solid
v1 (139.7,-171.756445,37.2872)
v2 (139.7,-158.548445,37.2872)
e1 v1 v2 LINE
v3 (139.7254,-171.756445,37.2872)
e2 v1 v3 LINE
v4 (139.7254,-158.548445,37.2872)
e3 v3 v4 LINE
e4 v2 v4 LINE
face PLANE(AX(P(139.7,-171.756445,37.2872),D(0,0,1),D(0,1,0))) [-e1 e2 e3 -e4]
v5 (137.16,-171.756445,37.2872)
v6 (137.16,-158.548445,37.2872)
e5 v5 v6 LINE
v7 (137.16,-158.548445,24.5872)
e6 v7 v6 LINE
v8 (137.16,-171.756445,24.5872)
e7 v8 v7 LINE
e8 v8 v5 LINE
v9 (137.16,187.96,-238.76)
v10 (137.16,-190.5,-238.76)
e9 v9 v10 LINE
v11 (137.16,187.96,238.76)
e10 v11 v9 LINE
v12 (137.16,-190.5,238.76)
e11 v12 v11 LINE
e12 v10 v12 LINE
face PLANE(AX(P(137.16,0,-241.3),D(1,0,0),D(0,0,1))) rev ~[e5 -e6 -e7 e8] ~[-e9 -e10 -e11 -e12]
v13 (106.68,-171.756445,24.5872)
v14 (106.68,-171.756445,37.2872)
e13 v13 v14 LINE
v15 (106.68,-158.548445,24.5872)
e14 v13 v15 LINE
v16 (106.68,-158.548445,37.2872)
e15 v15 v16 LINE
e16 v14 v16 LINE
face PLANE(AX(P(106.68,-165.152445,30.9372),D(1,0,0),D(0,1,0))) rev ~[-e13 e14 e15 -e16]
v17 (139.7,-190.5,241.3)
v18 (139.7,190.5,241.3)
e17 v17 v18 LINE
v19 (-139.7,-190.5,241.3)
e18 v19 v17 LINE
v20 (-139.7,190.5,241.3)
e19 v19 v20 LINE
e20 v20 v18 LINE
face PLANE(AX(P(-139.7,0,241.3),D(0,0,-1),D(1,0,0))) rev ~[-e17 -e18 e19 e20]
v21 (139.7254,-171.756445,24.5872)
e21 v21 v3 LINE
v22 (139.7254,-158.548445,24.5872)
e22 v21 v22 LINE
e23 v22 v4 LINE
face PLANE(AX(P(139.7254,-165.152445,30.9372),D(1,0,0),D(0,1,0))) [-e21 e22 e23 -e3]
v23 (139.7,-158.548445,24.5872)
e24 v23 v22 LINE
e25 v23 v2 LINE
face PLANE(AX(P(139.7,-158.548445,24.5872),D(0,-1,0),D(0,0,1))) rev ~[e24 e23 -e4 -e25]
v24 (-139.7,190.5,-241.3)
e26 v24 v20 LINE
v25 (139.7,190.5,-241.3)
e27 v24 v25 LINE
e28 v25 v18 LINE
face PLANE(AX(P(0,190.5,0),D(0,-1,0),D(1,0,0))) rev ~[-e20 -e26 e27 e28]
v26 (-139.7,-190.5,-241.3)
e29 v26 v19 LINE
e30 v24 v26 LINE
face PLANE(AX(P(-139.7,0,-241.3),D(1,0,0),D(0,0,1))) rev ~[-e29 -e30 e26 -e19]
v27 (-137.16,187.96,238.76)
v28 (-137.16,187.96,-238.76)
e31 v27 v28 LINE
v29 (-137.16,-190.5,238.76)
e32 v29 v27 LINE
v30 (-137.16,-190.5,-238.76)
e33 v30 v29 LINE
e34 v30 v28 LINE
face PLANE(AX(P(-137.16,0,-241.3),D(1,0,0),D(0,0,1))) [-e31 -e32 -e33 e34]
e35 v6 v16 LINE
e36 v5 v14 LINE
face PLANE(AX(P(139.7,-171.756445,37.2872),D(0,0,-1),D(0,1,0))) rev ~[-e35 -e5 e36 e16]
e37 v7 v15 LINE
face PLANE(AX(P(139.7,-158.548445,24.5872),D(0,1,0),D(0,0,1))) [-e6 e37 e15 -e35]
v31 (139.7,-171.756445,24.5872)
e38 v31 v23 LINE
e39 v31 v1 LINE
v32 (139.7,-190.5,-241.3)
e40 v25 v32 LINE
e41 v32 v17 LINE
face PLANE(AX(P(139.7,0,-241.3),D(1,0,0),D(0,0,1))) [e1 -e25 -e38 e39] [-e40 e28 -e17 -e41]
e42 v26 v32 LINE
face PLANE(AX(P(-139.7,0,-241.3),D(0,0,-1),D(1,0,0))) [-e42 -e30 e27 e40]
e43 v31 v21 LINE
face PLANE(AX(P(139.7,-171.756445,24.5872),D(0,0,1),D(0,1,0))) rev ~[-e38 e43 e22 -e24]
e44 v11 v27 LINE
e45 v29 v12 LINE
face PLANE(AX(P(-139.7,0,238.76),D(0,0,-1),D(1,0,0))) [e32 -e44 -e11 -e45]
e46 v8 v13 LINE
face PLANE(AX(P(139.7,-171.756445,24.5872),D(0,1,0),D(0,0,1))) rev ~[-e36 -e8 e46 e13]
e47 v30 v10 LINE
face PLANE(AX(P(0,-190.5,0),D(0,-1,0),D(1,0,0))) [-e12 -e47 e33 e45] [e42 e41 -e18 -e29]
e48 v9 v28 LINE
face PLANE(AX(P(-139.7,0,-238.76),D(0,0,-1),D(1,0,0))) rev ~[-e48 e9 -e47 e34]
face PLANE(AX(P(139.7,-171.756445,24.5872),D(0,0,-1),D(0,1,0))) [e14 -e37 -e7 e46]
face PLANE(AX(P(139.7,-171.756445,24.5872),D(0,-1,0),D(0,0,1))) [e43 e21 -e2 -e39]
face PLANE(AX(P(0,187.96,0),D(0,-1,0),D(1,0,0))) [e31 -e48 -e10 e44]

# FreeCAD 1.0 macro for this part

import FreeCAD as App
import Part
import Sketcher

V = App.Vector
Q = App.Units.Quantity


def faces_at(feature, points):
    """Names of the faces that lie closest to the given points."""
    faces = feature.Shape.Faces
    near = lambda p: min(range(len(faces)), key=lambda i: faces[i].distToShape(Part.Vertex(*p))[0])
    return sorted({f"Face{near(p) + 1}" for p in points})

doc = App.newDocument("Part")
body = doc.addObject("PartDesign::Body", "Body")

# Sketch on XZ plane
sketch1 = body.newObject("Sketcher::SketchObject", "Sketch")
sketch1.AttachmentSupport = (doc.getObject("XZ_Plane"), [""])
sketch1.MapMode = "FlatFace"
sketch1.addGeometry([
    Part.LineSegment(V(-140, 241, 0), V(-140, -241, 0)),
    Part.LineSegment(V(-140, -241, 0), V(140, -241, 0)),
    Part.LineSegment(V(140, -241, 0), V(140, 241, 0)),
    Part.LineSegment(V(140, 241, 0), V(-140, 241, 0)),
], False)
sketch1.addConstraint([
    Sketcher.Constraint("Coincident", 0, 2, 1, 1),
    Sketcher.Constraint("Coincident", 1, 2, 2, 1),
    Sketcher.Constraint("Coincident", 2, 2, 3, 1),
    Sketcher.Constraint("Coincident", 3, 2, 0, 1),
    Sketcher.Constraint("Vertical", 0),
    Sketcher.Constraint("Horizontal", 1),
    Sketcher.Constraint("Vertical", 2),
    Sketcher.Constraint("Horizontal", 3),
    Sketcher.Constraint("Symmetric", 0, 2, 2, 2, -1, 1),
    Sketcher.Constraint("DistanceX", 1, 1, 1, 2, Q("11 in")),
    Sketcher.Constraint("DistanceY", 0, 2, 0, 1, Q("19 in")),
])
pad1 = body.newObject("PartDesign::Pad", "Pad")
pad1.Profile = sketch1
pad1.Length = Q("15 in")
pad1.Midplane = True
doc.recompute()

thickness = body.newObject("PartDesign::Thickness", "Thickness")
thickness.Base = (pad1, faces_at(pad1, [(0, -190.5, 0)]))
thickness.Value = Q("0.1 in")
thickness.Reversed = True
thickness.Join = "Arc"

# Sketch on YZ plane
sketch2 = body.newObject("Sketcher::SketchObject", "Sketch001")
sketch2.AttachmentSupport = (doc.getObject("YZ_Plane"), [""])
sketch2.MapMode = "FlatFace"
sketch2.AttachmentOffset = App.Placement(V(0, 0, 5.5 * 25.4), App.Rotation())
sketch2.addGeometry([
    Part.LineSegment(V(-172, 37, 0), V(-172, 25, 0)),
    Part.LineSegment(V(-172, 25, 0), V(-159, 25, 0)),
    Part.LineSegment(V(-159, 25, 0), V(-159, 37, 0)),
    Part.LineSegment(V(-159, 37, 0), V(-172, 37, 0)),
], False)
sketch2.addConstraint([
    Sketcher.Constraint("Coincident", 0, 2, 1, 1),
    Sketcher.Constraint("Coincident", 1, 2, 2, 1),
    Sketcher.Constraint("Coincident", 2, 2, 3, 1),
    Sketcher.Constraint("Coincident", 3, 2, 0, 1),
    Sketcher.Constraint("Vertical", 0),
    Sketcher.Constraint("Horizontal", 1),
    Sketcher.Constraint("Vertical", 2),
    Sketcher.Constraint("Horizontal", 3),
    Sketcher.Constraint("DistanceY", 0, 2, 0, 1, Q("0.5 in")),
    Sketcher.Constraint("DistanceX", 1, 1, 1, 2, Q("0.52 in")),
    Sketcher.Constraint("DistanceY", -1, 1, 0, 2, Q("0.968 in")),
    Sketcher.Constraint("DistanceX", 0, 2, -1, 1, 171.756445),
])
pad2 = body.newObject("PartDesign::Pad", "Pad001")
pad2.Profile = sketch2
pad2.Type = "TwoLengths"
pad2.Length = Q("0.001 in")
pad2.Length2 = Q("1.3 in")

doc.recompute()
